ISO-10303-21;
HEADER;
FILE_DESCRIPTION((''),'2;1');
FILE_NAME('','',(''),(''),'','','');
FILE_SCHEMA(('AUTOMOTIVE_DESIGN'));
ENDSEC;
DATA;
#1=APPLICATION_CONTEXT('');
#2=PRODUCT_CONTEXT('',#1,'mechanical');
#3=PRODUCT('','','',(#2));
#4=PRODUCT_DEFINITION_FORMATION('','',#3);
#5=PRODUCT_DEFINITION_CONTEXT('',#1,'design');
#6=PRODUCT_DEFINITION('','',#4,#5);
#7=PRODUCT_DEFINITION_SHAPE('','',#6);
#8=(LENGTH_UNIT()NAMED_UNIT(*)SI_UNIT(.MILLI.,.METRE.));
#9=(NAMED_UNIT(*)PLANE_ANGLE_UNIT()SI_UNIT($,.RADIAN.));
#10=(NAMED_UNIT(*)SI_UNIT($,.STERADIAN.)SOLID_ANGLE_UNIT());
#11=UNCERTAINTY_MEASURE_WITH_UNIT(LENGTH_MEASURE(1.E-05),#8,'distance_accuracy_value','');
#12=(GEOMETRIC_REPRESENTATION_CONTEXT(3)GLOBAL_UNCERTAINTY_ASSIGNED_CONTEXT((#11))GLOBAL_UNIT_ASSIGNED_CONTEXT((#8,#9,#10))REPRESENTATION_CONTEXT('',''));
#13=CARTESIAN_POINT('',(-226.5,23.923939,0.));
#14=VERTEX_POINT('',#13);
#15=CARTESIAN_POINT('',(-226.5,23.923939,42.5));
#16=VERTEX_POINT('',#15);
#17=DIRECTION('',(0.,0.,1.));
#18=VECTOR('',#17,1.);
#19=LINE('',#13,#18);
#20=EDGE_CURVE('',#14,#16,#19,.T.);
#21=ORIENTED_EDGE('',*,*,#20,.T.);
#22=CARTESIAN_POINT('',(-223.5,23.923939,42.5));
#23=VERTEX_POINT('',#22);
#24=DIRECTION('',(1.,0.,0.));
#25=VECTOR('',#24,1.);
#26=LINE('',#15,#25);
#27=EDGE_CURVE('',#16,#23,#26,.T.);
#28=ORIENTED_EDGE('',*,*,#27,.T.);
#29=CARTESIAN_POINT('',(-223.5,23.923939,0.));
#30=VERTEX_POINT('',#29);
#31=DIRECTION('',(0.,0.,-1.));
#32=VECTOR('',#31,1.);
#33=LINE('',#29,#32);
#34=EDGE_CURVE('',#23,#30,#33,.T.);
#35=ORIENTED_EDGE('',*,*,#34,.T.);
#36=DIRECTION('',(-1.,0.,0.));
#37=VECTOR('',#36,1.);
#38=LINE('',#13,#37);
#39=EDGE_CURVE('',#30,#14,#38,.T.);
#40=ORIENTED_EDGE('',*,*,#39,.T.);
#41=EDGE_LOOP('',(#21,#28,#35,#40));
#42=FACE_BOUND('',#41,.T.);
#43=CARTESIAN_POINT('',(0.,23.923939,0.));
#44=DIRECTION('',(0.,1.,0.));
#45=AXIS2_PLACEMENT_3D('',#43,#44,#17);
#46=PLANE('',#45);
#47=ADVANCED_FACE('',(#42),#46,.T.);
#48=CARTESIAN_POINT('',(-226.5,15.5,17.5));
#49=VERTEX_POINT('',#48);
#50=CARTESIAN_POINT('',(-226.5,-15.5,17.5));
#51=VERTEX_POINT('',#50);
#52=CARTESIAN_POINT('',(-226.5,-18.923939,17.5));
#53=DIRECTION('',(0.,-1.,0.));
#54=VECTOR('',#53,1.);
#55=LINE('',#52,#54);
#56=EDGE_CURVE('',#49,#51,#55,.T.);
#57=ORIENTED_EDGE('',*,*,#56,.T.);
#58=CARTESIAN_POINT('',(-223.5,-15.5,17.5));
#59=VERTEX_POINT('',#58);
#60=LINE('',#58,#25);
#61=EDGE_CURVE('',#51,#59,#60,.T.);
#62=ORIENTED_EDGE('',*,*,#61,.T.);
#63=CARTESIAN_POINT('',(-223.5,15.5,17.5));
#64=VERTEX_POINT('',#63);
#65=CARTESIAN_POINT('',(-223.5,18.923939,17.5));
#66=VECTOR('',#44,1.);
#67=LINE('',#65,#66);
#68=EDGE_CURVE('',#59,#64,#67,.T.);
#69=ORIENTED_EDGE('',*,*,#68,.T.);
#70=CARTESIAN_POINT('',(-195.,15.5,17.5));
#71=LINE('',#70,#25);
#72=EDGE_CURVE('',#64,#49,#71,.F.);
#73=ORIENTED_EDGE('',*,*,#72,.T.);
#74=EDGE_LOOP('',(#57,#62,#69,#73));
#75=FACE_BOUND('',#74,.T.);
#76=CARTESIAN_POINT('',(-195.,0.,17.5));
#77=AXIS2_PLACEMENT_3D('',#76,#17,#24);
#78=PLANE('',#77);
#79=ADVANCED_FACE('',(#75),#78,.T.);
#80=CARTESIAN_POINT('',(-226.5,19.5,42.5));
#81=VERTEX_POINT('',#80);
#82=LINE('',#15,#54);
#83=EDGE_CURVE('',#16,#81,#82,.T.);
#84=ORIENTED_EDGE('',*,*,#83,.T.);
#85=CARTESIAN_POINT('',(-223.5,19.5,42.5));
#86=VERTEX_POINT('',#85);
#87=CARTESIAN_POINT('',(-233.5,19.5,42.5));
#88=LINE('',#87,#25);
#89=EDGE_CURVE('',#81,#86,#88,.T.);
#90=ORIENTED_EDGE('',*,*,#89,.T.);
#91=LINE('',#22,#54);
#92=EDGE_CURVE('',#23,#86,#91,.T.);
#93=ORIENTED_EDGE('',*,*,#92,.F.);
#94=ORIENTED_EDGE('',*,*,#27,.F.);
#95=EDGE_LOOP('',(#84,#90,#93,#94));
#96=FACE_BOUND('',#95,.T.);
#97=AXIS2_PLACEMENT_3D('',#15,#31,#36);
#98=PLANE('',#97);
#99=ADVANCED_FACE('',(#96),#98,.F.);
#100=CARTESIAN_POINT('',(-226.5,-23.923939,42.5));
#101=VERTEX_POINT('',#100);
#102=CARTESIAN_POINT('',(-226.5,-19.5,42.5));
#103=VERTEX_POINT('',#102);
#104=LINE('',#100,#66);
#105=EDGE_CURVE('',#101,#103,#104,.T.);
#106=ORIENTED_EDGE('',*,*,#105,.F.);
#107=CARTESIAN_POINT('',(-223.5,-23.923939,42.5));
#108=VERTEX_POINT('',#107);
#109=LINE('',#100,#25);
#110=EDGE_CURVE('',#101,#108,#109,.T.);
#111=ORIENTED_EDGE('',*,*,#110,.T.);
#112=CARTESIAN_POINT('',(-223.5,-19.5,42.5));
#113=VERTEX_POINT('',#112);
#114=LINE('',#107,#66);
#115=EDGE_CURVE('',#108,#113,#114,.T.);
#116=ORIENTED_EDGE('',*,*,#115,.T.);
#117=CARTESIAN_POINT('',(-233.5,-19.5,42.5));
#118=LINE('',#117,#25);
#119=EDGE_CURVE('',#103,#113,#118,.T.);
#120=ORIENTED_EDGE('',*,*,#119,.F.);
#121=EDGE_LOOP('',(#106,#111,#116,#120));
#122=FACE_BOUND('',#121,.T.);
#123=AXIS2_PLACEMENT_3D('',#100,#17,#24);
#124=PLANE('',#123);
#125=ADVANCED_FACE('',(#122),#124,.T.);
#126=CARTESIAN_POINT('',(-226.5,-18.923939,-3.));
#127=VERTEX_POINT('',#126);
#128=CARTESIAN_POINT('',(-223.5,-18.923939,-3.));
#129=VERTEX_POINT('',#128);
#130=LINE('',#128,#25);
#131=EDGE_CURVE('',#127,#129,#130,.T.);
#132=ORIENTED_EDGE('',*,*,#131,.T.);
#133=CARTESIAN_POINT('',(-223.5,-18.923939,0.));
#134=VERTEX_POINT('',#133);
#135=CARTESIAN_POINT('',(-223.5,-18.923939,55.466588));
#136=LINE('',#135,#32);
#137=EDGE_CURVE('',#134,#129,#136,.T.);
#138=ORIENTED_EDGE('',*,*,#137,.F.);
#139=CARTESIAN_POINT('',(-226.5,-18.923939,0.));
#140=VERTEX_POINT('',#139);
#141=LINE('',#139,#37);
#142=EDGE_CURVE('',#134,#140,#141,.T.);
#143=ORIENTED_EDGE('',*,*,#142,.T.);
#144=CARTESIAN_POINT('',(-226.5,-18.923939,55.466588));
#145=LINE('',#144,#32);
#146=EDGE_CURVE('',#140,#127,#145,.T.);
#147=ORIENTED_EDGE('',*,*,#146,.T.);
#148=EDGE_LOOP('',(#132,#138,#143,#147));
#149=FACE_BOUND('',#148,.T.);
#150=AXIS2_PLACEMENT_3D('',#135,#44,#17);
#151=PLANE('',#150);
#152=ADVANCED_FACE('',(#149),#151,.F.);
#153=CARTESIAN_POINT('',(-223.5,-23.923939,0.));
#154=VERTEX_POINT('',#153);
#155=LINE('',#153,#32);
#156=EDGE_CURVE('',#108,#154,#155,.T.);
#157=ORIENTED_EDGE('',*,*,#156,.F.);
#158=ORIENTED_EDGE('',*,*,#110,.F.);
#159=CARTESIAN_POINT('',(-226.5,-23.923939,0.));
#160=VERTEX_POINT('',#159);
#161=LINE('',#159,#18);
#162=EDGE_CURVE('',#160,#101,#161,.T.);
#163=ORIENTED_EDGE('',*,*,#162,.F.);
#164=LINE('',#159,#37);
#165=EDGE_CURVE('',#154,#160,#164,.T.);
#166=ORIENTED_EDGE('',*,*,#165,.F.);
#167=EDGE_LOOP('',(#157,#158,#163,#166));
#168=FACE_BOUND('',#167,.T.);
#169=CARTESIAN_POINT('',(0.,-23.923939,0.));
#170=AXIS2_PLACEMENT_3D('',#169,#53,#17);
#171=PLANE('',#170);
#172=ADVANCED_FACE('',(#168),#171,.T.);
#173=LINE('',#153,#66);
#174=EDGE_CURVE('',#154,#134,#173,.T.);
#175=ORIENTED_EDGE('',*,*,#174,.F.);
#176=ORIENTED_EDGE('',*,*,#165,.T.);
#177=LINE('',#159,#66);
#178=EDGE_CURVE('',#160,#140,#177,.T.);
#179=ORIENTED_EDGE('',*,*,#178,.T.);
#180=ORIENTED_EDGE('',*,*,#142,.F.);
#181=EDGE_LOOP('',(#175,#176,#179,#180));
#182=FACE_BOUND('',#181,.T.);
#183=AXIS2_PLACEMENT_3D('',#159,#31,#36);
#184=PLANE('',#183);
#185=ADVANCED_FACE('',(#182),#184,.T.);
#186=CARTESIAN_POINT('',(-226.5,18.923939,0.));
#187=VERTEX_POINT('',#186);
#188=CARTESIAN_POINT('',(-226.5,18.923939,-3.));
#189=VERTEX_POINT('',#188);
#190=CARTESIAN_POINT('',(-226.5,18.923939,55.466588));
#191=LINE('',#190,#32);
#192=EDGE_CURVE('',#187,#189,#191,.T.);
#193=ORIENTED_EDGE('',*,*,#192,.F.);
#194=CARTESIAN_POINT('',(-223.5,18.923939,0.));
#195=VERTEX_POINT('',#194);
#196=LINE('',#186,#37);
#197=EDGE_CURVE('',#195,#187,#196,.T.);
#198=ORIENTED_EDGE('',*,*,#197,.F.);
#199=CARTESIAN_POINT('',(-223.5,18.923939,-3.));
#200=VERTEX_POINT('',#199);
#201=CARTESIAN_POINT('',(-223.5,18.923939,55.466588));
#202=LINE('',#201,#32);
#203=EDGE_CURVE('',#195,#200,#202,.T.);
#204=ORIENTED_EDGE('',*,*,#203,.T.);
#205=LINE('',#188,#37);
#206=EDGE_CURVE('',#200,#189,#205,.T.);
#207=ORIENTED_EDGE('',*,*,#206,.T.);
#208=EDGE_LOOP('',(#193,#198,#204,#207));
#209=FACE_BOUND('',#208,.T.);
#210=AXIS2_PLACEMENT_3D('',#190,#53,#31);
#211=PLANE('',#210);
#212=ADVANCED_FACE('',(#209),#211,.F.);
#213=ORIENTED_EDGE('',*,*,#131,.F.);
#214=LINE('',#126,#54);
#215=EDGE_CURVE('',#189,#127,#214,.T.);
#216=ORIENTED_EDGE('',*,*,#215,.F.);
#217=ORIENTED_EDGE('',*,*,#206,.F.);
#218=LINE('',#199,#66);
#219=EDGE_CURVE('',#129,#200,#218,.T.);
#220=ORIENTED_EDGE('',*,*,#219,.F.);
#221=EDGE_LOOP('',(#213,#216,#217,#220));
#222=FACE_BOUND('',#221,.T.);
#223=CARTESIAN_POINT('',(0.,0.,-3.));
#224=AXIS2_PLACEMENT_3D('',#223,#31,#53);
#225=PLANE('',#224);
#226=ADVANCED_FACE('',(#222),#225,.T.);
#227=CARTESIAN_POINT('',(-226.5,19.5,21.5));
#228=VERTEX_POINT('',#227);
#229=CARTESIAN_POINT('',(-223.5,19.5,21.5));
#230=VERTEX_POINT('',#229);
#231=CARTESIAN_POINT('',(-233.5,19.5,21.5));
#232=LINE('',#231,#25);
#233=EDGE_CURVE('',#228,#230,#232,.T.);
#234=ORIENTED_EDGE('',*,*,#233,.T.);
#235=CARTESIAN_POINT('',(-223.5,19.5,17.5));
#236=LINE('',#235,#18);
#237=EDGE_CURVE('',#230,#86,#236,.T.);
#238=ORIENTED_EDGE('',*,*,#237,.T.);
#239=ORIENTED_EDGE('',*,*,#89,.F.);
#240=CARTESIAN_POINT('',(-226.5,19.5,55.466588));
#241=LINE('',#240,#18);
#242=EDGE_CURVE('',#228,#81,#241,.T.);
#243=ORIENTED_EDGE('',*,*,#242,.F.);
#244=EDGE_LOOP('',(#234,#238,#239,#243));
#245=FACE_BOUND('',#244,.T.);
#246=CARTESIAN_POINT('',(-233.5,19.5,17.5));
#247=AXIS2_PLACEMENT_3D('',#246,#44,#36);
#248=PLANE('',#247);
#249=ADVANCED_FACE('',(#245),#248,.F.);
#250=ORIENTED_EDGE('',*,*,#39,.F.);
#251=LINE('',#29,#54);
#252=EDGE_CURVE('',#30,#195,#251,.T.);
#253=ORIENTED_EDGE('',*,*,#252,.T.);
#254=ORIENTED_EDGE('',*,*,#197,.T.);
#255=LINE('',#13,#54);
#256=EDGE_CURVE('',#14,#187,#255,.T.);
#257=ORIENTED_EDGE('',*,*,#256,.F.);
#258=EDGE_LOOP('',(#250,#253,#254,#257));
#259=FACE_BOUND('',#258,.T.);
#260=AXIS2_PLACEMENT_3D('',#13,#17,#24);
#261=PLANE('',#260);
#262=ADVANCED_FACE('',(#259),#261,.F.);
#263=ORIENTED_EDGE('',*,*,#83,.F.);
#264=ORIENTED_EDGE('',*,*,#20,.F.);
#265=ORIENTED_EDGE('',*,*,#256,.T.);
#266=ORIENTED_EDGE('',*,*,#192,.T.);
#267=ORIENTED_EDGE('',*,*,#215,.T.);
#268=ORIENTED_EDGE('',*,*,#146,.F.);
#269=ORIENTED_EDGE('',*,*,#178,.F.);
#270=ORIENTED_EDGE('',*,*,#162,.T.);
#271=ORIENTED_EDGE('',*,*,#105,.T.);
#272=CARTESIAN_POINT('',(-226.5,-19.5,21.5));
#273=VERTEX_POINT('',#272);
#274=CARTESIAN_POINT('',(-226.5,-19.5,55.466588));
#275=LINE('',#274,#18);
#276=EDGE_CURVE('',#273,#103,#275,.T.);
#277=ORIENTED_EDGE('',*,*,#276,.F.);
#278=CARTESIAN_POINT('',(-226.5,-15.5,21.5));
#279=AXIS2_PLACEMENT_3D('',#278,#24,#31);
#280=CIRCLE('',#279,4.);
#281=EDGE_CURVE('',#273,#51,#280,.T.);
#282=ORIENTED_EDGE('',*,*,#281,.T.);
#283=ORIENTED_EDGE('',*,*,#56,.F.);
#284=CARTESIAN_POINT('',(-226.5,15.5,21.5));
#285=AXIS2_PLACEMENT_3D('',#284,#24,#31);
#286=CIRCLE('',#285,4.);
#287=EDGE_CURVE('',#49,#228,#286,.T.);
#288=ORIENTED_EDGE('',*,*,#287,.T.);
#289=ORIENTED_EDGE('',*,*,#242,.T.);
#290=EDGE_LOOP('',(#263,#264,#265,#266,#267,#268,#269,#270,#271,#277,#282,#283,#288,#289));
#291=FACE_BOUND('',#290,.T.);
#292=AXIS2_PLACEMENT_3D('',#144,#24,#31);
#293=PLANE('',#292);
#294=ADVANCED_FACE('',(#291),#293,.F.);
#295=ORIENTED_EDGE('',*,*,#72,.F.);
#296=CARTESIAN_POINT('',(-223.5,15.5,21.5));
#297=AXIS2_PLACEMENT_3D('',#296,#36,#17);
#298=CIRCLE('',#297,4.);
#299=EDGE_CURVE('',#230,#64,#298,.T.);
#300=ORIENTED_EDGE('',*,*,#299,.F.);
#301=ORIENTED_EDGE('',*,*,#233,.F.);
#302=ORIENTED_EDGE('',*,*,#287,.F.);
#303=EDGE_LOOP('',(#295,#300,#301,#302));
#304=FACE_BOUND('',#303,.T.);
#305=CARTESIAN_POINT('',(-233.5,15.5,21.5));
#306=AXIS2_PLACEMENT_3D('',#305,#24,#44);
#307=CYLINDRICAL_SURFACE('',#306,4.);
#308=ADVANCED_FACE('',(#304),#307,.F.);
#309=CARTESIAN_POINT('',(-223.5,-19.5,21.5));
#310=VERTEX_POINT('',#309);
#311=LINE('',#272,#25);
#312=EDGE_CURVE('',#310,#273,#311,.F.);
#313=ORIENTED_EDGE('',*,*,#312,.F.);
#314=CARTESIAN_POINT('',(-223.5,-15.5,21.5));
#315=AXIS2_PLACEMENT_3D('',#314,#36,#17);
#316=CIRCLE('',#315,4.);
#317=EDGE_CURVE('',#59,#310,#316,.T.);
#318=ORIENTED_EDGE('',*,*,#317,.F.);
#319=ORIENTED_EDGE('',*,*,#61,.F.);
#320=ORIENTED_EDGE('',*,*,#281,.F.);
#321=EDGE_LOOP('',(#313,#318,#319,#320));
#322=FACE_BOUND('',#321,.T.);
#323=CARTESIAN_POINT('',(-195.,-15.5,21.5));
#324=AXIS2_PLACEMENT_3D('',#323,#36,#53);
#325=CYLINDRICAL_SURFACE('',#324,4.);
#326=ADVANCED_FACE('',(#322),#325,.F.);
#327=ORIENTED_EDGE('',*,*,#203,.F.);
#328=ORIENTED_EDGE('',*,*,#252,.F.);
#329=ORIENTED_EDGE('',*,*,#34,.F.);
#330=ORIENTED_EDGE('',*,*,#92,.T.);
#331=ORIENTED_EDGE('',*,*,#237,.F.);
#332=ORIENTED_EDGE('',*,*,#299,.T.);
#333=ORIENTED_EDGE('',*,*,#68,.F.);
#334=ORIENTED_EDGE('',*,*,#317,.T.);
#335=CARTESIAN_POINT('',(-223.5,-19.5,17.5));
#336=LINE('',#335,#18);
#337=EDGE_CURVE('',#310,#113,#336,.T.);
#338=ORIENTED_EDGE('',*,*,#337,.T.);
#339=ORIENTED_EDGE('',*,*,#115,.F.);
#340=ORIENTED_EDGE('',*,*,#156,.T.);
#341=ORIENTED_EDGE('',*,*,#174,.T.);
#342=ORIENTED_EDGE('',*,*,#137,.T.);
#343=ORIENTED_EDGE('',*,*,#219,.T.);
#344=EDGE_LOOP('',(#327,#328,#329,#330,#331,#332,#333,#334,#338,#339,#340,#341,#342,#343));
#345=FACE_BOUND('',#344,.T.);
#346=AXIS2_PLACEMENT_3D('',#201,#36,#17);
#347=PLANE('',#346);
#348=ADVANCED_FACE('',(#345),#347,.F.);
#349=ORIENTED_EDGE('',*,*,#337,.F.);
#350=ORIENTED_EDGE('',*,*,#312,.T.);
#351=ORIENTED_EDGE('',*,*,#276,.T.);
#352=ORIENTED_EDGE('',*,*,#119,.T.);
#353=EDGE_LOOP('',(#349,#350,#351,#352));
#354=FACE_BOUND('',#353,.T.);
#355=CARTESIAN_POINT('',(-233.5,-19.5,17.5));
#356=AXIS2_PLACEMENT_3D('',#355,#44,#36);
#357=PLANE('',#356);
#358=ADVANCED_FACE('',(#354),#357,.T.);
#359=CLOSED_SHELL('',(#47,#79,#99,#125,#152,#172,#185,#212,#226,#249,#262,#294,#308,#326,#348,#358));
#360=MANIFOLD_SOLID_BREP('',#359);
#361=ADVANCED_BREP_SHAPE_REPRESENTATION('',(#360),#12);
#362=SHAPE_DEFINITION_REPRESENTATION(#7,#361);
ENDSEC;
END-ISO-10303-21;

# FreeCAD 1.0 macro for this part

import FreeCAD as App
import Part
import Sketcher

V = App.Vector


def edges_at(feature, points):
    """Names of the edges that pass closest to the given points."""
    edges = feature.Shape.Edges
    near = lambda p: min(range(len(edges)), key=lambda i: edges[i].distToShape(Part.Vertex(*p))[0])
    return sorted({f"Edge{near(p) + 1}" for p in points})

doc = App.newDocument("Part")
body = doc.addObject("PartDesign::Body", "Body")

# Sketch on XY plane
sketch1 = doc.addObject("Sketcher::SketchObject", "Sketch")
body.addObject(sketch1)
sketch1.AttachmentSupport = (doc.XY_Plane, [""])
sketch1.MapMode = "FlatFace"
sketch1.addGeometry([
    Part.LineSegment(V(-226.5, 18.9, 0), V(-226.5, -18.9, 0)),
    Part.LineSegment(V(-226.5, -18.9, 0), V(-223.5, -18.9, 0)),
    Part.LineSegment(V(-223.5, -18.9, 0), V(-223.5, 18.9, 0)),
    Part.LineSegment(V(-223.5, 18.9, 0), V(-226.5, 18.9, 0)),
], False)
sketch1.addConstraint([
    Sketcher.Constraint("Coincident", 0, 2, 1, 1),
    Sketcher.Constraint("Coincident", 1, 2, 2, 1),
    Sketcher.Constraint("Coincident", 2, 2, 3, 1),
    Sketcher.Constraint("Coincident", 3, 2, 0, 1),
    Sketcher.Constraint("Vertical", 0),
    Sketcher.Constraint("Horizontal", 1),
    Sketcher.Constraint("Vertical", 2),
    Sketcher.Constraint("Horizontal", 3),
    Sketcher.Constraint("DistanceX", 1, 1, 1, 2, 3.0),
    Sketcher.Constraint("DistanceX", 0, 2, -1, 1, 226.5),
    Sketcher.Constraint("DistanceY", 0, 2, 0, 1, 37.847877),
    Sketcher.Constraint("DistanceY", 0, 2, -1, 1, 18.923939),
])
pad1 = doc.addObject("PartDesign::Pad", "Pad")
body.addObject(pad1)
pad1.Profile = sketch1
pad1.Type = "TwoLengths"
pad1.Length = 17.5
pad1.Length2 = 3

# Sketch on XZ plane
sketch2 = doc.addObject("Sketcher::SketchObject", "Sketch001")
body.addObject(sketch2)
sketch2.AttachmentSupport = (doc.XZ_Plane, [""])
sketch2.MapMode = "FlatFace"
sketch2.AttachmentOffset = App.Placement(V(0, 0, -18.923939), App.Rotation())
sketch2.addGeometry([
    Part.LineSegment(V(-226.5, 0, 0), V(-226.5, 42.5, 0)),
    Part.LineSegment(V(-226.5, 42.5, 0), V(-223.5, 42.5, 0)),
    Part.LineSegment(V(-223.5, 42.5, 0), V(-223.5, 0, 0)),
    Part.LineSegment(V(-223.5, 0, 0), V(-226.5, 0, 0)),
], False)
sketch2.addConstraint([
    Sketcher.Constraint("Coincident", 0, 2, 1, 1),
    Sketcher.Constraint("Coincident", 1, 2, 2, 1),
    Sketcher.Constraint("Coincident", 2, 2, 3, 1),
    Sketcher.Constraint("Coincident", 3, 2, 0, 1),
    Sketcher.Constraint("Vertical", 0),
    Sketcher.Constraint("Horizontal", 1),
    Sketcher.Constraint("Vertical", 2),
    Sketcher.Constraint("Horizontal", 3),
    Sketcher.Constraint("PointOnObject", 2, 2, -1),
    Sketcher.Constraint("DistanceX", 1, 1, 1, 2, 3.0),
    Sketcher.Constraint("DistanceY", 0, 1, 0, 2, 42.5),
    Sketcher.Constraint("DistanceX", 0, 2, -1, 1, 226.5),
])
pad2 = doc.addObject("PartDesign::Pad", "Pad001")
body.addObject(pad2)
pad2.Profile = sketch2
pad2.Length = 5
pad2.Reversed = True

# Sketch on YZ plane
sketch3 = doc.addObject("Sketcher::SketchObject", "Sketch002")
body.addObject(sketch3)
sketch3.AttachmentSupport = (doc.YZ_Plane, [""])
sketch3.MapMode = "FlatFace"
sketch3.AttachmentOffset = App.Placement(V(0, 0, -223.5), App.Rotation())
sketch3.addGeometry([
    Part.LineSegment(V(19.5, 42.5, 0), V(18.9, 42.5, 0)),
    Part.LineSegment(V(18.9, 42.5, 0), V(18.9, 17.5, 0)),
    Part.LineSegment(V(18.9, 17.5, 0), V(19.5, 17.5, 0)),
    Part.LineSegment(V(19.5, 17.5, 0), V(19.5, 42.5, 0)),
], False)
sketch3.addConstraint([
    Sketcher.Constraint("Coincident", 0, 2, 1, 1),
    Sketcher.Constraint("Coincident", 1, 2, 2, 1),
    Sketcher.Constraint("Coincident", 2, 2, 3, 1),
    Sketcher.Constraint("Coincident", 3, 2, 0, 1),
    Sketcher.Constraint("Horizontal", 0),
    Sketcher.Constraint("Vertical", 1),
    Sketcher.Constraint("Horizontal", 2),
    Sketcher.Constraint("Vertical", 3),
    Sketcher.Constraint("DistanceY", 1, 2, 1, 1, 25.0),
    Sketcher.Constraint("DistanceY", -1, 1, 0, 2, 42.5),
    Sketcher.Constraint("DistanceX", -1, 1, 2, 2, 19.5),
    Sketcher.Constraint("DistanceX", 0, 2, 0, 1, 0.576061),
])
pocket1 = doc.addObject("PartDesign::Pocket", "Pocket")
body.addObject(pocket1)
pocket1.Profile = sketch3
pocket1.Length = 10
doc.recompute()

fillet = doc.addObject("PartDesign::Fillet", "Fillet")
body.addObject(fillet)
fillet.Base = (pocket1, edges_at(pocket1, [(-225, 19.5, 17.5)]))
fillet.Radius = 4
doc.recompute()

mirrored = doc.addObject("PartDesign::Mirrored", "Mirrored")
body.addObject(mirrored)
mirrored.Originals = [pad2, pocket1]
mirrored.MirrorPlane = (doc.XZ_Plane, [""])
body.Tip = mirrored
doc.recompute()

fillet2 = doc.addObject("PartDesign::Fillet", "Fillet001")
body.addObject(fillet2)
fillet2.Base = (mirrored, edges_at(mirrored, [(-225, -19.5, 17.5)]))
fillet2.Radius = 4

doc.recompute()
